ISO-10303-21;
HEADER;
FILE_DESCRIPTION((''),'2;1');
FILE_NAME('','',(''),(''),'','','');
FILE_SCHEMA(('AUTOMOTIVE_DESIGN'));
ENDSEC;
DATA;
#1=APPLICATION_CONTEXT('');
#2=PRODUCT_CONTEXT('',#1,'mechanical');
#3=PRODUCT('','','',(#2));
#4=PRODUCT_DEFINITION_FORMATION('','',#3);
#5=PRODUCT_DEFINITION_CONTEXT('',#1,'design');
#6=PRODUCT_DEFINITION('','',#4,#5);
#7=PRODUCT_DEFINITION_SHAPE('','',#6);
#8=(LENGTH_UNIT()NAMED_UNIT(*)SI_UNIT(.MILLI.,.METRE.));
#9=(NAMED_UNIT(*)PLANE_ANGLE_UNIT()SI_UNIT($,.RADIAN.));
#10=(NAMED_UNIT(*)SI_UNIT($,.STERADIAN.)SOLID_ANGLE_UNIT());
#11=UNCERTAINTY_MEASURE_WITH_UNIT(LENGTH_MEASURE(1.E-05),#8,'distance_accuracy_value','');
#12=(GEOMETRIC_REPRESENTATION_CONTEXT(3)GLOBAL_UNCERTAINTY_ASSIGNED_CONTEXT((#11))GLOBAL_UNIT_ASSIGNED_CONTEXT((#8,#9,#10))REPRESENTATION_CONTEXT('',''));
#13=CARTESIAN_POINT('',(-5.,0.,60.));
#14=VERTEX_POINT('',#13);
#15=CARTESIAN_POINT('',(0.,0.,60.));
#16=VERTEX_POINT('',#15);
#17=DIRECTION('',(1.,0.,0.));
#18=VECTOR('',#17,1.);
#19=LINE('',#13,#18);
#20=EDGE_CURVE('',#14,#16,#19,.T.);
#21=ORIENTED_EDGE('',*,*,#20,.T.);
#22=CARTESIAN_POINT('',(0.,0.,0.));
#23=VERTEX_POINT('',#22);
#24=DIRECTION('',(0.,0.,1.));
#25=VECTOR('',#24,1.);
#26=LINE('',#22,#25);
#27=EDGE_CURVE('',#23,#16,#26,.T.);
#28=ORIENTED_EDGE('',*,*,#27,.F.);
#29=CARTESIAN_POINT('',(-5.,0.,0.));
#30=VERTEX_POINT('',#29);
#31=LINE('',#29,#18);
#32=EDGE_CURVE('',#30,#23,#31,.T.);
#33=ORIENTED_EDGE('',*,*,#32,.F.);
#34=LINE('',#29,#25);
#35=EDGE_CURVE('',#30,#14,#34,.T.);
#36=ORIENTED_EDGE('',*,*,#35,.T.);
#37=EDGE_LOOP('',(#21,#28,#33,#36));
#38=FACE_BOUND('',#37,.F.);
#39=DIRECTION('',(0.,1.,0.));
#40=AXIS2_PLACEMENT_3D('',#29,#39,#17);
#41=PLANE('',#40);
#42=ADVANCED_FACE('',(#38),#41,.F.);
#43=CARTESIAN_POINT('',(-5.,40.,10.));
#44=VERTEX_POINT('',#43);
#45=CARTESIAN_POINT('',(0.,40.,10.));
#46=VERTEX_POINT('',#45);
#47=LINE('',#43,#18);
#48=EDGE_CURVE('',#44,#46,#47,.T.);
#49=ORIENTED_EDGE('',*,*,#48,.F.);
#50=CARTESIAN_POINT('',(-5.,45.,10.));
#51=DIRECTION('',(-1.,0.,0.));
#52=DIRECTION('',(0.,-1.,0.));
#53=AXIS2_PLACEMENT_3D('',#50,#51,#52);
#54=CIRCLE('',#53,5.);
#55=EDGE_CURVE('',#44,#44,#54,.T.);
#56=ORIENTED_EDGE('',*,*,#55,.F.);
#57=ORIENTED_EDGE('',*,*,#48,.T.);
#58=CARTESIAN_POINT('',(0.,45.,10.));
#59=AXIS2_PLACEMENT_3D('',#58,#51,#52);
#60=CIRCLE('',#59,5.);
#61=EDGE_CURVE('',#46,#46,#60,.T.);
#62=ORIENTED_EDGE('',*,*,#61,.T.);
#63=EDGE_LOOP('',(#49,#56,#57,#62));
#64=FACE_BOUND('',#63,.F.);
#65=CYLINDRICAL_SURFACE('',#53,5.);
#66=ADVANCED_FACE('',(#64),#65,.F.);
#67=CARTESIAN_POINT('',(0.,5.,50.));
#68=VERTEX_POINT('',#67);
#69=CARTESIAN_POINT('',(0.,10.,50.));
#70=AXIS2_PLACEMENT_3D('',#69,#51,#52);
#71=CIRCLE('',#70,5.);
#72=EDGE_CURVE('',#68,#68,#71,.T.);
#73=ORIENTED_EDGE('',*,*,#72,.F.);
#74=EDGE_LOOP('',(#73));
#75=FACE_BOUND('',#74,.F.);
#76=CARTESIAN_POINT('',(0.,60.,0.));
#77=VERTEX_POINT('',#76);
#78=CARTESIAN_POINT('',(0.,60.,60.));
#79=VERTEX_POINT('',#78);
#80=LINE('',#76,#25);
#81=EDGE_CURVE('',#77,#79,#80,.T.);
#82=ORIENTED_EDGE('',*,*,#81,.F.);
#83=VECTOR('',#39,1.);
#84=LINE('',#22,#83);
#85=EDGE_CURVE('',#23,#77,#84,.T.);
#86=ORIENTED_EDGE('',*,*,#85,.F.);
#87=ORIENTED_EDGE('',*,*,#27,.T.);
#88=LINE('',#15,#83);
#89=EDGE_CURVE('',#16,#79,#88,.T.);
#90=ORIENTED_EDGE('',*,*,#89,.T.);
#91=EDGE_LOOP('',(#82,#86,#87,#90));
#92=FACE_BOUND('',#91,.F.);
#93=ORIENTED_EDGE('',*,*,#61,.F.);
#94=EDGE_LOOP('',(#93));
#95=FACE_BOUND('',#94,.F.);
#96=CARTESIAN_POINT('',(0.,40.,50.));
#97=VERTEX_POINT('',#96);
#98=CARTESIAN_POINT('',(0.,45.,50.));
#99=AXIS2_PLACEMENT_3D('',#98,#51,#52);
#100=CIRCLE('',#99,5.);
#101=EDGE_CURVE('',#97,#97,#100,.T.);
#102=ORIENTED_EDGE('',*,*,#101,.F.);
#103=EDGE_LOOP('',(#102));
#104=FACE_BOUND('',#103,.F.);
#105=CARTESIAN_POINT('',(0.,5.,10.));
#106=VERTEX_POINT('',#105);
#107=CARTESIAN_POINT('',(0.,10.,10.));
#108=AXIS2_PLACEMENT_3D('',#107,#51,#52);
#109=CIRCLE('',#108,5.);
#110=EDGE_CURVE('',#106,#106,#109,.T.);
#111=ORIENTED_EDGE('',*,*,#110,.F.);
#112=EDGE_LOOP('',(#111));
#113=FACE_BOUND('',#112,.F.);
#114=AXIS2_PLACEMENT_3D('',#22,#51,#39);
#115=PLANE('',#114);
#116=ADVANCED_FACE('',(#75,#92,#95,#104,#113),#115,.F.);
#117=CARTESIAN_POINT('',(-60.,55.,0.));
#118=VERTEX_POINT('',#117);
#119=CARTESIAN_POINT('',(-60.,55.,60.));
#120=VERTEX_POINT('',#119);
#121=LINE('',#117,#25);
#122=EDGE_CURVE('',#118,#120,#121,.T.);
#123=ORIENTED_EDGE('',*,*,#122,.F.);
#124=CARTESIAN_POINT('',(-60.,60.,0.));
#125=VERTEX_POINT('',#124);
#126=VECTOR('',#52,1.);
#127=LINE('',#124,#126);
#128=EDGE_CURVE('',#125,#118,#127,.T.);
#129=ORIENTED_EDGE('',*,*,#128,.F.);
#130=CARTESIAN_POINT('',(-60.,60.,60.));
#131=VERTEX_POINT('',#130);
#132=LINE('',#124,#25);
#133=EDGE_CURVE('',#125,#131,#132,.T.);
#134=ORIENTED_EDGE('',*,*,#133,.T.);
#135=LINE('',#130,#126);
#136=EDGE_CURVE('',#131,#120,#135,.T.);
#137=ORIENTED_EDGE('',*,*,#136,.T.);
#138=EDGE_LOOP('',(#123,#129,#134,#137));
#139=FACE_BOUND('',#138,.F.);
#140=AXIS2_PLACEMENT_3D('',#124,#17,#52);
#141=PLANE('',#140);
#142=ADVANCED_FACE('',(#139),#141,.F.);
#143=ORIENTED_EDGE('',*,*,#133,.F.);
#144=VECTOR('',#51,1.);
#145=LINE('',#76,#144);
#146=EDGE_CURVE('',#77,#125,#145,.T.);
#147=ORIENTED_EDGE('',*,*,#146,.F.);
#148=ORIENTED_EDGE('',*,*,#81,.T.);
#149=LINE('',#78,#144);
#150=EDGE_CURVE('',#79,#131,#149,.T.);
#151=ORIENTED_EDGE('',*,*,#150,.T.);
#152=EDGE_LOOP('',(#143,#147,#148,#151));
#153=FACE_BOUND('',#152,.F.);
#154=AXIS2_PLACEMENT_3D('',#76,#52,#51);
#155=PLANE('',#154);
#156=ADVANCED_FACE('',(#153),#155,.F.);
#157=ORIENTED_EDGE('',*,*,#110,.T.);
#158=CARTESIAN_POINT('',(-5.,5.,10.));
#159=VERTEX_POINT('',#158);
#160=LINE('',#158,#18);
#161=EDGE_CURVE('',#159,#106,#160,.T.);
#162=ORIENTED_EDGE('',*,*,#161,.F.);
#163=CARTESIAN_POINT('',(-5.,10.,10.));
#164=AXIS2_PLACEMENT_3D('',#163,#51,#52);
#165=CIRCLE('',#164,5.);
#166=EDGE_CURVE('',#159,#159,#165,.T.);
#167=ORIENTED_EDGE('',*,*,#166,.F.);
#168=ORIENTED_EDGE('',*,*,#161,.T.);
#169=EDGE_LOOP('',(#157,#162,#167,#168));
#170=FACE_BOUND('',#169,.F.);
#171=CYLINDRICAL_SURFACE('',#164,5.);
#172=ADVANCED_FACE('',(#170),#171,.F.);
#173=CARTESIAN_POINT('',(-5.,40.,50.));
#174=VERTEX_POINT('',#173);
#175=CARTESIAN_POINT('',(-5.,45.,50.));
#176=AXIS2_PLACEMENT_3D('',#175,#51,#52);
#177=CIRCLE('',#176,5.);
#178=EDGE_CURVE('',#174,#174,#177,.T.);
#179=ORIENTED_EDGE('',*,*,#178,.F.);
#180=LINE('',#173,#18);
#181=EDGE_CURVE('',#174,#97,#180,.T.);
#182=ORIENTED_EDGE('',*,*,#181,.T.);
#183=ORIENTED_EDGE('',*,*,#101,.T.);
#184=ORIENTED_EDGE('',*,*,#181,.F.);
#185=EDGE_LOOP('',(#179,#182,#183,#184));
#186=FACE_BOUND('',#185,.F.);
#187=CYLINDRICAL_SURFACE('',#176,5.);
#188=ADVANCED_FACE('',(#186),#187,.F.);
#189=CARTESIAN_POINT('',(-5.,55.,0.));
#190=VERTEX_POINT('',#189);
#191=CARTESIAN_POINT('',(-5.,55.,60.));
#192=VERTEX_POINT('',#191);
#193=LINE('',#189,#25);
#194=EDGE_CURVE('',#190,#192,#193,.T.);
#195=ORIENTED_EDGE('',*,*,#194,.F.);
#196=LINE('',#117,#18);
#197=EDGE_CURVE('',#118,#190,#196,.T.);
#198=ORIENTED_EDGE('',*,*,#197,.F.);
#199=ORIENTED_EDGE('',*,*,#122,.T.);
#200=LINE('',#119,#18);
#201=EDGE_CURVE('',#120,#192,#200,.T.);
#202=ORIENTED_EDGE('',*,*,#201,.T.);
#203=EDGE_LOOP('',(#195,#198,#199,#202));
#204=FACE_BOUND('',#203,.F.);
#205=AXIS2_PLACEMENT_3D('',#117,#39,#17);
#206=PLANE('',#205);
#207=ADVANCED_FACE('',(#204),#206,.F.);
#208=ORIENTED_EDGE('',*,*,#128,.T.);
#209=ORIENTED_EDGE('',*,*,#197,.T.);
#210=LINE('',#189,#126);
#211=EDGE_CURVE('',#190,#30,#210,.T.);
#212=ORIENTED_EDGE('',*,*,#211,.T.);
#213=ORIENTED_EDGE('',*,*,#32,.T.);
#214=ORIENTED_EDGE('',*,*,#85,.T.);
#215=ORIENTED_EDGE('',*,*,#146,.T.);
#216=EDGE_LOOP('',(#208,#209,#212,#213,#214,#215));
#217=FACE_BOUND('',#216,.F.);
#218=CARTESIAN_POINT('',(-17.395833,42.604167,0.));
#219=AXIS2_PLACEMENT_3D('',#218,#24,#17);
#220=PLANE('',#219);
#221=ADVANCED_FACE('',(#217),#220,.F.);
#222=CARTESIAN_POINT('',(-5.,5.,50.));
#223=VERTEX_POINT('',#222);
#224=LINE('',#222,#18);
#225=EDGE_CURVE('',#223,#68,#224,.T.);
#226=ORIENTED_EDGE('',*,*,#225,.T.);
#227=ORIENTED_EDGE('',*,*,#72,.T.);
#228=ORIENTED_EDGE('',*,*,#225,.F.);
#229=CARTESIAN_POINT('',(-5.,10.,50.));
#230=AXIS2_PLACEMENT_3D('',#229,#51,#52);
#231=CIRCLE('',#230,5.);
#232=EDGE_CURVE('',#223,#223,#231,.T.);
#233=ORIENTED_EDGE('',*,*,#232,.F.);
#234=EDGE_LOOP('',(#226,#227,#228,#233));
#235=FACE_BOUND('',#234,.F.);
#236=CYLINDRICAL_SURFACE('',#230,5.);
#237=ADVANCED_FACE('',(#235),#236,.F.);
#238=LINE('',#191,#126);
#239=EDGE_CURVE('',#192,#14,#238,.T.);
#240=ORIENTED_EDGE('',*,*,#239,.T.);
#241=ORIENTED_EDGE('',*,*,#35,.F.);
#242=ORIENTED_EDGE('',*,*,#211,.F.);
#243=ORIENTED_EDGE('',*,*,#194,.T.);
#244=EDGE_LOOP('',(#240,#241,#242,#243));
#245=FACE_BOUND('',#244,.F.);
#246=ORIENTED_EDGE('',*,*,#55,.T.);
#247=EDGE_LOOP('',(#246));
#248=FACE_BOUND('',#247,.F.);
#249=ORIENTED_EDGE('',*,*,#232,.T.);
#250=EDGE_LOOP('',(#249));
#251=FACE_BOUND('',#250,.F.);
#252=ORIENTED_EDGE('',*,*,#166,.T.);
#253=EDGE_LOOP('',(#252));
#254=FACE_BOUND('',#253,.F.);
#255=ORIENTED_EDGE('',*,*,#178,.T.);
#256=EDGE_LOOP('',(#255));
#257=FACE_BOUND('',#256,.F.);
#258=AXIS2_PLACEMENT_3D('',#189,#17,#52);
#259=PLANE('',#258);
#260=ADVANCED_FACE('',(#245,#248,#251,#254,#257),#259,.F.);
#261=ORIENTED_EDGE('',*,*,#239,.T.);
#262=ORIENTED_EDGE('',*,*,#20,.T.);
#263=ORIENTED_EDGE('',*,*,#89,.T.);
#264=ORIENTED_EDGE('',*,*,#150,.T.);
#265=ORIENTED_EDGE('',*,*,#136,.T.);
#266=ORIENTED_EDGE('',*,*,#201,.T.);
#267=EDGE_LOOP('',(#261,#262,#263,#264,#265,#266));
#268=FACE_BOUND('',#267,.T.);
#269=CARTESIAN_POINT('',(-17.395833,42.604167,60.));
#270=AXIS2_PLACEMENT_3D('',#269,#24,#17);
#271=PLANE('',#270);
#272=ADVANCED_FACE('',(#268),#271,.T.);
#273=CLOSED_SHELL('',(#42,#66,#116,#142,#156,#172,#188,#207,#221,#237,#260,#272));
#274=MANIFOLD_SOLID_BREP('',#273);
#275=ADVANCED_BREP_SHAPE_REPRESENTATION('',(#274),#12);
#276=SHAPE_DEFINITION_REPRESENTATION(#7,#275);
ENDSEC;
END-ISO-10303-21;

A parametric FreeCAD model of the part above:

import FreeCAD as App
import Part
import Sketcher

V = App.Vector
Q = App.Units.Quantity


def add_polygon(sketch, points):
    """Adds a closed chain of lines whose ends are joined by coincident constraints."""
    first, n = sketch.GeometryCount, len(points)
    for a, b in zip(points, points[1:] + points[:1]):
        sketch.addGeometry(Part.LineSegment(App.Vector(*a, 0), App.Vector(*b, 0)), False)
    for i in range(n):
        sketch.addConstraint(Sketcher.Constraint("Coincident", first + i, 2, first + (i + 1) % n, 1))

doc = App.newDocument("Part")
body = doc.addObject("PartDesign::Body", "Body")

# Sketch on XY plane
sketch1 = body.newObject("Sketcher::SketchObject", "Sketch")
sketch1.AttachmentSupport = (doc.getObject("XY_Plane"), [""])
sketch1.MapMode = "FlatFace"
add_polygon(sketch1, [(0, 0), (0, 60), (-60, 60), (-60, 55), (-5, 55), (-5, 0)])  # lines 0-5
sketch1.addConstraint([
    Sketcher.Constraint("Vertical", 0),
    Sketcher.Constraint("Horizontal", 1),
    Sketcher.Constraint("Vertical", 2),
    Sketcher.Constraint("Horizontal", 3),
    Sketcher.Constraint("Vertical", 4),
    Sketcher.Constraint("Horizontal", 5),
    Sketcher.Constraint("Coincident", 5, 2, -1, 1),
    Sketcher.Constraint("Equal", 1, 0),
    Sketcher.Constraint("Equal", 5, 2),
    Sketcher.Constraint("DistanceX", 1, 2, 1, 1, Q("60 mm")),
    Sketcher.Constraint("DistanceX", 3, 1, 3, 2, Q("55 mm")),
])
pad1 = body.newObject("PartDesign::Pad", "Pad")
pad1.Profile = sketch1
pad1.Length = 60

# Sketch on YZ plane
sketch2 = body.newObject("Sketcher::SketchObject", "Sketch001")
sketch2.AttachmentSupport = (doc.getObject("YZ_Plane"), [""])
sketch2.MapMode = "FlatFace"
sketch2.AttachmentOffset = App.Placement(V(0, 0, -5), App.Rotation())
sketch2.addGeometry([
    Part.Circle(V(45, 50, 0), V(0, 0, 1), 5),
    Part.Circle(V(10, 50, 0), V(0, 0, 1), 5),
    Part.Circle(V(10, 10, 0), V(0, 0, 1), 5),
    Part.Circle(V(45, 10, 0), V(0, 0, 1), 5),
], False)
sketch2.addConstraint([
    Sketcher.Constraint("Equal", 0, 1),
    Sketcher.Constraint("Equal", 1, 2),
    Sketcher.Constraint("Equal", 2, 3),
    Sketcher.Constraint("Horizontal", 0, 3, 1, 3),
    Sketcher.Constraint("Horizontal", 2, 3, 3, 3),
    Sketcher.Constraint("Vertical", 1, 3, 2, 3),
    Sketcher.Constraint("Vertical", 0, 3, 3, 3),
    Sketcher.Constraint("Diameter", 0, Q("10 mm")),
    Sketcher.Constraint("DistanceX", -1, 1, 0, 3, Q("45 mm")),
    Sketcher.Constraint("DistanceY", -1, 1, 0, 3, Q("50 mm")),
    Sketcher.Constraint("DistanceX", -1, 1, 1, 3, Q("10 mm")),
    Sketcher.Constraint("DistanceY", -1, 1, 2, 3, Q("10 mm")),
])
pocket1 = body.newObject("PartDesign::Pocket", "Pocket")
pocket1.Profile = sketch2
pocket1.Length = 5
pocket1.Reversed = True

doc.recompute()
